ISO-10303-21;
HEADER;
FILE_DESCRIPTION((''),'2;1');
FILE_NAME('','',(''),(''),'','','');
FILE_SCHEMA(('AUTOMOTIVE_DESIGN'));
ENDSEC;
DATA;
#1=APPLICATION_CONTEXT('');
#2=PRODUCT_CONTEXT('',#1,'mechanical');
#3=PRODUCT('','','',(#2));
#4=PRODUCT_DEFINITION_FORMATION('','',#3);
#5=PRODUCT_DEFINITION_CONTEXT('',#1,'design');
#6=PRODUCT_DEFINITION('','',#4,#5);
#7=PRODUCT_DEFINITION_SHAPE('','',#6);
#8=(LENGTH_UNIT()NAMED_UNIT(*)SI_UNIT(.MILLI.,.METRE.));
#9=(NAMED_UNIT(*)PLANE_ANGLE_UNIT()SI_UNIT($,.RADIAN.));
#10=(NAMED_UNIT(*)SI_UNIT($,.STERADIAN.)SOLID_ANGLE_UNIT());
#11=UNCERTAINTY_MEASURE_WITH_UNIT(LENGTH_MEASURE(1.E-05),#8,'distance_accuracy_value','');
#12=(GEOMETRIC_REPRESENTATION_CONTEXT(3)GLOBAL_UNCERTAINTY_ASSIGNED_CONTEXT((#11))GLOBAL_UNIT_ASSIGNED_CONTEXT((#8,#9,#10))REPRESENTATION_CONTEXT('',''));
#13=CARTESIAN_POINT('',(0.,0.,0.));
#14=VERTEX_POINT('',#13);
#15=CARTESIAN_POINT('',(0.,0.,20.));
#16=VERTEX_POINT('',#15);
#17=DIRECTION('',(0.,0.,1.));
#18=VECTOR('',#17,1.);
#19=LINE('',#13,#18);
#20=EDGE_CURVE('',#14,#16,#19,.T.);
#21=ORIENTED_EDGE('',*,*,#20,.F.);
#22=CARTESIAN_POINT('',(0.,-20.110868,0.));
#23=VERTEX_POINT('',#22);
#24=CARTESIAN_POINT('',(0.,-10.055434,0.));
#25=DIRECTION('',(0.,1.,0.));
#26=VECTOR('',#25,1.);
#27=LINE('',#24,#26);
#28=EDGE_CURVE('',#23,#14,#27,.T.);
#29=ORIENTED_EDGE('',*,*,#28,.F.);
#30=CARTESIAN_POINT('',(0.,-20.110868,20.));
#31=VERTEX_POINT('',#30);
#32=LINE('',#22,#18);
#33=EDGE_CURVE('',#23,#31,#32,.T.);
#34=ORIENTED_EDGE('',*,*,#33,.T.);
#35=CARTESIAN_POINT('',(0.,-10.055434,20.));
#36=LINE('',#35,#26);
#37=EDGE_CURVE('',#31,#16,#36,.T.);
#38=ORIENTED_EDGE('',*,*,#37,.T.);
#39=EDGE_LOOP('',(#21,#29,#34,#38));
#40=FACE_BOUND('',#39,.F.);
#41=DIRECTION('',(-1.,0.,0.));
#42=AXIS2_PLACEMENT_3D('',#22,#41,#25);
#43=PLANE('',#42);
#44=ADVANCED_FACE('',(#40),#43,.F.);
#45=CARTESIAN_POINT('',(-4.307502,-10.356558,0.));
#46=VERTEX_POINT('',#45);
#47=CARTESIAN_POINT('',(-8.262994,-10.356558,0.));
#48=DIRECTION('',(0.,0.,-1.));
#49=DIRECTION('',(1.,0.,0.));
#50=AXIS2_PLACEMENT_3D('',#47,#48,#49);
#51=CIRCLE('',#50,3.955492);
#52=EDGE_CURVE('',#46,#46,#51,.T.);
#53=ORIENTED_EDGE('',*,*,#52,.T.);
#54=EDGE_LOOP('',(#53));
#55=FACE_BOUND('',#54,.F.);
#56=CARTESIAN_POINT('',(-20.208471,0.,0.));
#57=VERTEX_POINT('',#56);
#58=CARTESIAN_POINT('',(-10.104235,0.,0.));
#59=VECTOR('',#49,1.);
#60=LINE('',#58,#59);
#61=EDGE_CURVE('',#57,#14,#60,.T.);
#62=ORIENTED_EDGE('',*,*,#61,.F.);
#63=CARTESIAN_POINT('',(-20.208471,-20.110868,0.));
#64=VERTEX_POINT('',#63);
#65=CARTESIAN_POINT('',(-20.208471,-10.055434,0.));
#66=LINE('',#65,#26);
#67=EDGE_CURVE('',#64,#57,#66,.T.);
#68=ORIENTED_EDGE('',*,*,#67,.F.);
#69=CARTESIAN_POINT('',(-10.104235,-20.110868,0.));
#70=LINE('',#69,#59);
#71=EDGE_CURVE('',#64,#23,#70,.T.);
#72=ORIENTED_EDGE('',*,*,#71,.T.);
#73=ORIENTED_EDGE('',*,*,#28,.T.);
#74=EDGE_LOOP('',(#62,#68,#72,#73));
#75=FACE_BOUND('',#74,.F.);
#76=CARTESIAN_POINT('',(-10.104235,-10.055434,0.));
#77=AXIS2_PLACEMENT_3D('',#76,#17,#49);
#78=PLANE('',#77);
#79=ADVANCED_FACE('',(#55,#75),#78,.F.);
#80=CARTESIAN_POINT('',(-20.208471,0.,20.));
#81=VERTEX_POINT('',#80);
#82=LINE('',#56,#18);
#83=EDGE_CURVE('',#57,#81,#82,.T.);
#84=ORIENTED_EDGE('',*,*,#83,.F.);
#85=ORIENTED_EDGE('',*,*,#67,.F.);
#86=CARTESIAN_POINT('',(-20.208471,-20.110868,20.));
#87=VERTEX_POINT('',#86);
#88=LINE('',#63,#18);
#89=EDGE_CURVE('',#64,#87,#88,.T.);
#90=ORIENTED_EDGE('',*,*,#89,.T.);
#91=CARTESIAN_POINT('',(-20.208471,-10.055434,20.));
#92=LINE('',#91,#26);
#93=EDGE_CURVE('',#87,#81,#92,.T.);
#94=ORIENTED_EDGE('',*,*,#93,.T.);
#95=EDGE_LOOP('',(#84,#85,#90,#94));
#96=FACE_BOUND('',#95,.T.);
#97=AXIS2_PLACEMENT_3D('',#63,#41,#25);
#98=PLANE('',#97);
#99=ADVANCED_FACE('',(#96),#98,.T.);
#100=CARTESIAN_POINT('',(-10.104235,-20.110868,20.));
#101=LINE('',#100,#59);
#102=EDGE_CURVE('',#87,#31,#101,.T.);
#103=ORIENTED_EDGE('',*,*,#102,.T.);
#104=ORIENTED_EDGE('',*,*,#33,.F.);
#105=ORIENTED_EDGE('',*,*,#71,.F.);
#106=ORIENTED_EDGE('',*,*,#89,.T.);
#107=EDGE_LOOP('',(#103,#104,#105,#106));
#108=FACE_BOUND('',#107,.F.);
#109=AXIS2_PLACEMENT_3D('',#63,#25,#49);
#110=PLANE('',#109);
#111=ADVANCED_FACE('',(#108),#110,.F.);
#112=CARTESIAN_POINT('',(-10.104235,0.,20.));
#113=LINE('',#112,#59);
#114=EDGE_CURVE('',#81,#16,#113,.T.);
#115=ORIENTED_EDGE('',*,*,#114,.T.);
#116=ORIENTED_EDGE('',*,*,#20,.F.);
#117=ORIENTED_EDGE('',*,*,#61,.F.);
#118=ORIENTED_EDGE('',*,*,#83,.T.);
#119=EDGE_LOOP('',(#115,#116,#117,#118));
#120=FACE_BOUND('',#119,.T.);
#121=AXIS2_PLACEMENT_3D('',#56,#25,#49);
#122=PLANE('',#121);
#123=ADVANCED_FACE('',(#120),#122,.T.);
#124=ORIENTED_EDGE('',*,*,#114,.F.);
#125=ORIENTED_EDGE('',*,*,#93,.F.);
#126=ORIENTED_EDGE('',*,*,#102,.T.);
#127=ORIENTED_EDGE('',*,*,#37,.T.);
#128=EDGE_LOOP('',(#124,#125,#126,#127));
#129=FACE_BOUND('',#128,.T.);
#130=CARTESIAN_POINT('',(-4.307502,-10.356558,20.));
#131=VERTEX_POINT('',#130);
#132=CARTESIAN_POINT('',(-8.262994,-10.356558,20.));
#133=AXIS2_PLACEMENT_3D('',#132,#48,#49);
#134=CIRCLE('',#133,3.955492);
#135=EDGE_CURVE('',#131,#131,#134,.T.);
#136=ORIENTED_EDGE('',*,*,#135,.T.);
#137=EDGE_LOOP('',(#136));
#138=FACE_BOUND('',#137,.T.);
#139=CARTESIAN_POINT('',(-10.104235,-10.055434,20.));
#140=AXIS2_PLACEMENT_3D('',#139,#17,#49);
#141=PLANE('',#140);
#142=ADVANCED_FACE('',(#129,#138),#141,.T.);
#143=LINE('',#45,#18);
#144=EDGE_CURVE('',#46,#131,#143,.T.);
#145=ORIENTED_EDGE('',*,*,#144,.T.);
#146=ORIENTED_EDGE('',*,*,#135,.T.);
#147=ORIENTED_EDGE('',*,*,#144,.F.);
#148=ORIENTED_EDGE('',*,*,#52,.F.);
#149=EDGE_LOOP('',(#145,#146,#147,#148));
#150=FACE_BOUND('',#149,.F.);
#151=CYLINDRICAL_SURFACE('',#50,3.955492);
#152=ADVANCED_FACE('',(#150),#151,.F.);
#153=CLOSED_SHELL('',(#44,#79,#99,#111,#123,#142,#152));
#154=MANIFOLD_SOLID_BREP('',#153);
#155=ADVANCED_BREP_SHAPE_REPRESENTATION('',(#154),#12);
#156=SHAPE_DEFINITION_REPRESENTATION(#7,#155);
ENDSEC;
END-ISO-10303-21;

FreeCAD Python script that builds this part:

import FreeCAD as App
import Part
import Sketcher
from FreeCAD import Vector
Q = App.Units.Quantity

doc = App.newDocument("Part")
body = doc.addObject("PartDesign::Body", "Body")

sketch1 = body.newObject("Sketcher::SketchObject", "Sketch")
sketch1.AttachmentSupport = (doc.getObject("XY_Plane"), [""])
sketch1.MapMode = "FlatFace"
sketch1.addGeometry(Part.LineSegment(Vector(-20.208471, 0, 0), Vector(-20.208471, -20.110868, 0)), False)
sketch1.addGeometry(Part.LineSegment(Vector(-20.208471, -20.110868, 0), Vector(0, -20.110868, 0)), False)
sketch1.addGeometry(Part.LineSegment(Vector(0, -20.110868, 0), Vector(0, 0, 0)), False)
sketch1.addGeometry(Part.LineSegment(Vector(0, 0, 0), Vector(-20.208471, 0, 0)), False)
sketch1.addConstraint(Sketcher.Constraint("Coincident", 0, 2, 1, 1))
sketch1.addConstraint(Sketcher.Constraint("Coincident", 1, 2, 2, 1))
sketch1.addConstraint(Sketcher.Constraint("Coincident", 2, 2, 3, 1))
sketch1.addConstraint(Sketcher.Constraint("Coincident", 3, 2, 0, 1))
sketch1.addConstraint(Sketcher.Constraint("Vertical", 0))
sketch1.addConstraint(Sketcher.Constraint("Horizontal", 1))
sketch1.addConstraint(Sketcher.Constraint("Vertical", 2))
sketch1.addConstraint(Sketcher.Constraint("Horizontal", 3))
sketch1.addConstraint(Sketcher.Constraint("Coincident", 2, 2, -1, 1))
sketch1.addConstraint(Sketcher.Constraint("DistanceX", 1, 1, 1, 2, Q("20.208471 mm")))
sketch1.addConstraint(Sketcher.Constraint("DistanceY", 0, 2, 0, 1, Q("20.110868 mm")))
pad1 = body.newObject("PartDesign::Pad", "Pad")
pad1.Profile = sketch1
pad1.Length = 20

sketch2 = body.newObject("Sketcher::SketchObject", "Sketch001")
sketch2.AttachmentSupport = (doc.getObject("XY_Plane"), [""])
sketch2.MapMode = "FlatFace"
sketch2.addGeometry(Part.Circle(Vector(-8.262994, -10.356558, 0), Vector(0, 0, 1), 3.955492), False)
sketch2.addConstraint(Sketcher.Constraint("Diameter", 0, Q("7.910984 mm")))
sketch2.addConstraint(Sketcher.Constraint("DistanceX", 0, 3, -1, 1, Q("8.262994 mm")))
sketch2.addConstraint(Sketcher.Constraint("DistanceY", 0, 3, -1, 1, Q("10.356558 mm")))
pocket1 = body.newObject("PartDesign::Pocket", "Pocket")
pocket1.Profile = sketch2
pocket1.Length = 25
pocket1.Reversed = True

doc.recompute()
